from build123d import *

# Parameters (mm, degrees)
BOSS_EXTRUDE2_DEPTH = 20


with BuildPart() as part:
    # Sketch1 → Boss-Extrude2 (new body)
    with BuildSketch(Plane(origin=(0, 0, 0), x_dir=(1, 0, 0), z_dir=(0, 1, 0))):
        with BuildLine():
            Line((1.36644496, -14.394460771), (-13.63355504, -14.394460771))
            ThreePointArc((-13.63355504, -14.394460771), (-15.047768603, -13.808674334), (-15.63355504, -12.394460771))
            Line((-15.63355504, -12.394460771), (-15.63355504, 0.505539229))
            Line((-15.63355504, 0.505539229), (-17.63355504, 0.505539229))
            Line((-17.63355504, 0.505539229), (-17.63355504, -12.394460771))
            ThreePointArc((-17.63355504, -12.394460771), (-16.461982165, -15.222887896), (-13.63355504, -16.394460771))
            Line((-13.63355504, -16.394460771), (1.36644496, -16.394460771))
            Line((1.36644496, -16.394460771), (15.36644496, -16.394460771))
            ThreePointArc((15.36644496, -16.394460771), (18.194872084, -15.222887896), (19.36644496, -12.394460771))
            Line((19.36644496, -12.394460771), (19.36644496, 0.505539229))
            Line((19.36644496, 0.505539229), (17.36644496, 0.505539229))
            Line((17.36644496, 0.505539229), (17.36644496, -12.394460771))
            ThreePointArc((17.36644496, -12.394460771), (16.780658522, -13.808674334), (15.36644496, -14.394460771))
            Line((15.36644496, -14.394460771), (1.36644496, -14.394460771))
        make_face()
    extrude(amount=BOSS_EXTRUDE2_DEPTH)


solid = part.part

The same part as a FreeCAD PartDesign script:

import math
import FreeCAD as App
import Part
import Sketcher
Q = App.Units.Quantity

doc = App.newDocument("Part")
body = doc.addObject("PartDesign::Body", "Body")

# Sketch on XZ plane
sketch1 = doc.addObject("Sketcher::SketchObject", "Sketch")
body.addObject(sketch1)
sketch1.AttachmentSupport = (doc.XZ_Plane, [""])
sketch1.MapMode = "FlatFace"
sketch1.addGeometry(Part.ArcOfCircle(Part.Circle(App.Vector(-13.633555, 12.394461, 0), App.Vector(0, 0, 1), 2), math.radians(90), math.radians(180)), False)
sketch1.addGeometry(Part.LineSegment(App.Vector(-15.633555, 12.394461, 0), App.Vector(-15.633555, -0.505539, 0)), False)
sketch1.addGeometry(Part.LineSegment(App.Vector(-15.633555, -0.505539, 0), App.Vector(-17.633555, -0.505539, 0)), False)
sketch1.addGeometry(Part.LineSegment(App.Vector(-17.633555, -0.505539, 0), App.Vector(-17.633555, 12.394461, 0)), False)
sketch1.addGeometry(Part.ArcOfCircle(Part.Circle(App.Vector(-13.633555, 12.394461, 0), App.Vector(0, 0, 1), 4), math.radians(90), math.radians(180)), False)
sketch1.addGeometry(Part.LineSegment(App.Vector(-13.633555, 16.394461, 0), App.Vector(15.366445, 16.394461, 0)), False)
sketch1.addGeometry(Part.ArcOfCircle(Part.Circle(App.Vector(15.366445, 12.394461, 0), App.Vector(0, 0, 1), 4), math.radians(0), math.radians(90)), False)
sketch1.addGeometry(Part.LineSegment(App.Vector(19.366445, 12.394461, 0), App.Vector(19.366445, -0.505539, 0)), False)
sketch1.addGeometry(Part.LineSegment(App.Vector(19.366445, -0.505539, 0), App.Vector(17.366445, -0.505539, 0)), False)
sketch1.addGeometry(Part.LineSegment(App.Vector(17.366445, -0.505539, 0), App.Vector(17.366445, 12.394461, 0)), False)
sketch1.addGeometry(Part.ArcOfCircle(Part.Circle(App.Vector(15.366445, 12.394461, 0), App.Vector(0, 0, 1), 2), math.radians(0), math.radians(90)), False)
sketch1.addGeometry(Part.LineSegment(App.Vector(15.366445, 14.394461, 0), App.Vector(-13.633555, 14.394461, 0)), False)
sketch1.addConstraint(Sketcher.Constraint("Tangent", 0, 2, 1, 1))
sketch1.addConstraint(Sketcher.Constraint("Coincident", 1, 2, 2, 1))
sketch1.addConstraint(Sketcher.Constraint("Coincident", 2, 2, 3, 1))
sketch1.addConstraint(Sketcher.Constraint("Tangent", 3, 2, 4, 2))
sketch1.addConstraint(Sketcher.Constraint("Tangent", 4, 1, 5, 1))
sketch1.addConstraint(Sketcher.Constraint("Tangent", 5, 2, 6, 2))
sketch1.addConstraint(Sketcher.Constraint("Tangent", 6, 1, 7, 1))
sketch1.addConstraint(Sketcher.Constraint("Coincident", 7, 2, 8, 1))
sketch1.addConstraint(Sketcher.Constraint("Coincident", 8, 2, 9, 1))
sketch1.addConstraint(Sketcher.Constraint("Tangent", 9, 2, 10, 1))
sketch1.addConstraint(Sketcher.Constraint("Tangent", 10, 2, 11, 1))
sketch1.addConstraint(Sketcher.Constraint("Tangent", 11, 2, 0, 1))
sketch1.addConstraint(Sketcher.Constraint("Vertical", 1))
sketch1.addConstraint(Sketcher.Constraint("Horizontal", 2))
sketch1.addConstraint(Sketcher.Constraint("Vertical", 3))
sketch1.addConstraint(Sketcher.Constraint("Horizontal", 5))
sketch1.addConstraint(Sketcher.Constraint("Vertical", 7))
sketch1.addConstraint(Sketcher.Constraint("Horizontal", 8))
sketch1.addConstraint(Sketcher.Constraint("Vertical", 9))
sketch1.addConstraint(Sketcher.Constraint("Horizontal", 11))
sketch1.addConstraint(Sketcher.Constraint("Coincident", 4, 3, 0, 3))
sketch1.addConstraint(Sketcher.Constraint("Coincident", 10, 3, 6, 3))
sketch1.addConstraint(Sketcher.Constraint("Equal", 4, 6))
sketch1.addConstraint(Sketcher.Constraint("Horizontal", 2, 2, 7, 2))
sketch1.addConstraint(Sketcher.Constraint("Radius", 0, Q("2 mm")))
sketch1.addConstraint(Sketcher.Constraint("Radius", 4, Q("4 mm")))
sketch1.addConstraint(Sketcher.Constraint("DistanceX", 5, 1, 5, 2, Q("29 mm")))
sketch1.addConstraint(Sketcher.Constraint("DistanceY", 1, 2, 1, 1, Q("12.9 mm")))
sketch1.addConstraint(Sketcher.Constraint("DistanceY", -1, 1, 0, 3, Q("12.394461 mm")))
sketch1.addConstraint(Sketcher.Constraint("DistanceX", 0, 3, -1, 1, Q("13.633555 mm")))
pad1 = doc.addObject("PartDesign::Pad", "Pad")
body.addObject(pad1)
pad1.Profile = sketch1
pad1.Length = 20
pad1.Reversed = True

doc.recompute()
